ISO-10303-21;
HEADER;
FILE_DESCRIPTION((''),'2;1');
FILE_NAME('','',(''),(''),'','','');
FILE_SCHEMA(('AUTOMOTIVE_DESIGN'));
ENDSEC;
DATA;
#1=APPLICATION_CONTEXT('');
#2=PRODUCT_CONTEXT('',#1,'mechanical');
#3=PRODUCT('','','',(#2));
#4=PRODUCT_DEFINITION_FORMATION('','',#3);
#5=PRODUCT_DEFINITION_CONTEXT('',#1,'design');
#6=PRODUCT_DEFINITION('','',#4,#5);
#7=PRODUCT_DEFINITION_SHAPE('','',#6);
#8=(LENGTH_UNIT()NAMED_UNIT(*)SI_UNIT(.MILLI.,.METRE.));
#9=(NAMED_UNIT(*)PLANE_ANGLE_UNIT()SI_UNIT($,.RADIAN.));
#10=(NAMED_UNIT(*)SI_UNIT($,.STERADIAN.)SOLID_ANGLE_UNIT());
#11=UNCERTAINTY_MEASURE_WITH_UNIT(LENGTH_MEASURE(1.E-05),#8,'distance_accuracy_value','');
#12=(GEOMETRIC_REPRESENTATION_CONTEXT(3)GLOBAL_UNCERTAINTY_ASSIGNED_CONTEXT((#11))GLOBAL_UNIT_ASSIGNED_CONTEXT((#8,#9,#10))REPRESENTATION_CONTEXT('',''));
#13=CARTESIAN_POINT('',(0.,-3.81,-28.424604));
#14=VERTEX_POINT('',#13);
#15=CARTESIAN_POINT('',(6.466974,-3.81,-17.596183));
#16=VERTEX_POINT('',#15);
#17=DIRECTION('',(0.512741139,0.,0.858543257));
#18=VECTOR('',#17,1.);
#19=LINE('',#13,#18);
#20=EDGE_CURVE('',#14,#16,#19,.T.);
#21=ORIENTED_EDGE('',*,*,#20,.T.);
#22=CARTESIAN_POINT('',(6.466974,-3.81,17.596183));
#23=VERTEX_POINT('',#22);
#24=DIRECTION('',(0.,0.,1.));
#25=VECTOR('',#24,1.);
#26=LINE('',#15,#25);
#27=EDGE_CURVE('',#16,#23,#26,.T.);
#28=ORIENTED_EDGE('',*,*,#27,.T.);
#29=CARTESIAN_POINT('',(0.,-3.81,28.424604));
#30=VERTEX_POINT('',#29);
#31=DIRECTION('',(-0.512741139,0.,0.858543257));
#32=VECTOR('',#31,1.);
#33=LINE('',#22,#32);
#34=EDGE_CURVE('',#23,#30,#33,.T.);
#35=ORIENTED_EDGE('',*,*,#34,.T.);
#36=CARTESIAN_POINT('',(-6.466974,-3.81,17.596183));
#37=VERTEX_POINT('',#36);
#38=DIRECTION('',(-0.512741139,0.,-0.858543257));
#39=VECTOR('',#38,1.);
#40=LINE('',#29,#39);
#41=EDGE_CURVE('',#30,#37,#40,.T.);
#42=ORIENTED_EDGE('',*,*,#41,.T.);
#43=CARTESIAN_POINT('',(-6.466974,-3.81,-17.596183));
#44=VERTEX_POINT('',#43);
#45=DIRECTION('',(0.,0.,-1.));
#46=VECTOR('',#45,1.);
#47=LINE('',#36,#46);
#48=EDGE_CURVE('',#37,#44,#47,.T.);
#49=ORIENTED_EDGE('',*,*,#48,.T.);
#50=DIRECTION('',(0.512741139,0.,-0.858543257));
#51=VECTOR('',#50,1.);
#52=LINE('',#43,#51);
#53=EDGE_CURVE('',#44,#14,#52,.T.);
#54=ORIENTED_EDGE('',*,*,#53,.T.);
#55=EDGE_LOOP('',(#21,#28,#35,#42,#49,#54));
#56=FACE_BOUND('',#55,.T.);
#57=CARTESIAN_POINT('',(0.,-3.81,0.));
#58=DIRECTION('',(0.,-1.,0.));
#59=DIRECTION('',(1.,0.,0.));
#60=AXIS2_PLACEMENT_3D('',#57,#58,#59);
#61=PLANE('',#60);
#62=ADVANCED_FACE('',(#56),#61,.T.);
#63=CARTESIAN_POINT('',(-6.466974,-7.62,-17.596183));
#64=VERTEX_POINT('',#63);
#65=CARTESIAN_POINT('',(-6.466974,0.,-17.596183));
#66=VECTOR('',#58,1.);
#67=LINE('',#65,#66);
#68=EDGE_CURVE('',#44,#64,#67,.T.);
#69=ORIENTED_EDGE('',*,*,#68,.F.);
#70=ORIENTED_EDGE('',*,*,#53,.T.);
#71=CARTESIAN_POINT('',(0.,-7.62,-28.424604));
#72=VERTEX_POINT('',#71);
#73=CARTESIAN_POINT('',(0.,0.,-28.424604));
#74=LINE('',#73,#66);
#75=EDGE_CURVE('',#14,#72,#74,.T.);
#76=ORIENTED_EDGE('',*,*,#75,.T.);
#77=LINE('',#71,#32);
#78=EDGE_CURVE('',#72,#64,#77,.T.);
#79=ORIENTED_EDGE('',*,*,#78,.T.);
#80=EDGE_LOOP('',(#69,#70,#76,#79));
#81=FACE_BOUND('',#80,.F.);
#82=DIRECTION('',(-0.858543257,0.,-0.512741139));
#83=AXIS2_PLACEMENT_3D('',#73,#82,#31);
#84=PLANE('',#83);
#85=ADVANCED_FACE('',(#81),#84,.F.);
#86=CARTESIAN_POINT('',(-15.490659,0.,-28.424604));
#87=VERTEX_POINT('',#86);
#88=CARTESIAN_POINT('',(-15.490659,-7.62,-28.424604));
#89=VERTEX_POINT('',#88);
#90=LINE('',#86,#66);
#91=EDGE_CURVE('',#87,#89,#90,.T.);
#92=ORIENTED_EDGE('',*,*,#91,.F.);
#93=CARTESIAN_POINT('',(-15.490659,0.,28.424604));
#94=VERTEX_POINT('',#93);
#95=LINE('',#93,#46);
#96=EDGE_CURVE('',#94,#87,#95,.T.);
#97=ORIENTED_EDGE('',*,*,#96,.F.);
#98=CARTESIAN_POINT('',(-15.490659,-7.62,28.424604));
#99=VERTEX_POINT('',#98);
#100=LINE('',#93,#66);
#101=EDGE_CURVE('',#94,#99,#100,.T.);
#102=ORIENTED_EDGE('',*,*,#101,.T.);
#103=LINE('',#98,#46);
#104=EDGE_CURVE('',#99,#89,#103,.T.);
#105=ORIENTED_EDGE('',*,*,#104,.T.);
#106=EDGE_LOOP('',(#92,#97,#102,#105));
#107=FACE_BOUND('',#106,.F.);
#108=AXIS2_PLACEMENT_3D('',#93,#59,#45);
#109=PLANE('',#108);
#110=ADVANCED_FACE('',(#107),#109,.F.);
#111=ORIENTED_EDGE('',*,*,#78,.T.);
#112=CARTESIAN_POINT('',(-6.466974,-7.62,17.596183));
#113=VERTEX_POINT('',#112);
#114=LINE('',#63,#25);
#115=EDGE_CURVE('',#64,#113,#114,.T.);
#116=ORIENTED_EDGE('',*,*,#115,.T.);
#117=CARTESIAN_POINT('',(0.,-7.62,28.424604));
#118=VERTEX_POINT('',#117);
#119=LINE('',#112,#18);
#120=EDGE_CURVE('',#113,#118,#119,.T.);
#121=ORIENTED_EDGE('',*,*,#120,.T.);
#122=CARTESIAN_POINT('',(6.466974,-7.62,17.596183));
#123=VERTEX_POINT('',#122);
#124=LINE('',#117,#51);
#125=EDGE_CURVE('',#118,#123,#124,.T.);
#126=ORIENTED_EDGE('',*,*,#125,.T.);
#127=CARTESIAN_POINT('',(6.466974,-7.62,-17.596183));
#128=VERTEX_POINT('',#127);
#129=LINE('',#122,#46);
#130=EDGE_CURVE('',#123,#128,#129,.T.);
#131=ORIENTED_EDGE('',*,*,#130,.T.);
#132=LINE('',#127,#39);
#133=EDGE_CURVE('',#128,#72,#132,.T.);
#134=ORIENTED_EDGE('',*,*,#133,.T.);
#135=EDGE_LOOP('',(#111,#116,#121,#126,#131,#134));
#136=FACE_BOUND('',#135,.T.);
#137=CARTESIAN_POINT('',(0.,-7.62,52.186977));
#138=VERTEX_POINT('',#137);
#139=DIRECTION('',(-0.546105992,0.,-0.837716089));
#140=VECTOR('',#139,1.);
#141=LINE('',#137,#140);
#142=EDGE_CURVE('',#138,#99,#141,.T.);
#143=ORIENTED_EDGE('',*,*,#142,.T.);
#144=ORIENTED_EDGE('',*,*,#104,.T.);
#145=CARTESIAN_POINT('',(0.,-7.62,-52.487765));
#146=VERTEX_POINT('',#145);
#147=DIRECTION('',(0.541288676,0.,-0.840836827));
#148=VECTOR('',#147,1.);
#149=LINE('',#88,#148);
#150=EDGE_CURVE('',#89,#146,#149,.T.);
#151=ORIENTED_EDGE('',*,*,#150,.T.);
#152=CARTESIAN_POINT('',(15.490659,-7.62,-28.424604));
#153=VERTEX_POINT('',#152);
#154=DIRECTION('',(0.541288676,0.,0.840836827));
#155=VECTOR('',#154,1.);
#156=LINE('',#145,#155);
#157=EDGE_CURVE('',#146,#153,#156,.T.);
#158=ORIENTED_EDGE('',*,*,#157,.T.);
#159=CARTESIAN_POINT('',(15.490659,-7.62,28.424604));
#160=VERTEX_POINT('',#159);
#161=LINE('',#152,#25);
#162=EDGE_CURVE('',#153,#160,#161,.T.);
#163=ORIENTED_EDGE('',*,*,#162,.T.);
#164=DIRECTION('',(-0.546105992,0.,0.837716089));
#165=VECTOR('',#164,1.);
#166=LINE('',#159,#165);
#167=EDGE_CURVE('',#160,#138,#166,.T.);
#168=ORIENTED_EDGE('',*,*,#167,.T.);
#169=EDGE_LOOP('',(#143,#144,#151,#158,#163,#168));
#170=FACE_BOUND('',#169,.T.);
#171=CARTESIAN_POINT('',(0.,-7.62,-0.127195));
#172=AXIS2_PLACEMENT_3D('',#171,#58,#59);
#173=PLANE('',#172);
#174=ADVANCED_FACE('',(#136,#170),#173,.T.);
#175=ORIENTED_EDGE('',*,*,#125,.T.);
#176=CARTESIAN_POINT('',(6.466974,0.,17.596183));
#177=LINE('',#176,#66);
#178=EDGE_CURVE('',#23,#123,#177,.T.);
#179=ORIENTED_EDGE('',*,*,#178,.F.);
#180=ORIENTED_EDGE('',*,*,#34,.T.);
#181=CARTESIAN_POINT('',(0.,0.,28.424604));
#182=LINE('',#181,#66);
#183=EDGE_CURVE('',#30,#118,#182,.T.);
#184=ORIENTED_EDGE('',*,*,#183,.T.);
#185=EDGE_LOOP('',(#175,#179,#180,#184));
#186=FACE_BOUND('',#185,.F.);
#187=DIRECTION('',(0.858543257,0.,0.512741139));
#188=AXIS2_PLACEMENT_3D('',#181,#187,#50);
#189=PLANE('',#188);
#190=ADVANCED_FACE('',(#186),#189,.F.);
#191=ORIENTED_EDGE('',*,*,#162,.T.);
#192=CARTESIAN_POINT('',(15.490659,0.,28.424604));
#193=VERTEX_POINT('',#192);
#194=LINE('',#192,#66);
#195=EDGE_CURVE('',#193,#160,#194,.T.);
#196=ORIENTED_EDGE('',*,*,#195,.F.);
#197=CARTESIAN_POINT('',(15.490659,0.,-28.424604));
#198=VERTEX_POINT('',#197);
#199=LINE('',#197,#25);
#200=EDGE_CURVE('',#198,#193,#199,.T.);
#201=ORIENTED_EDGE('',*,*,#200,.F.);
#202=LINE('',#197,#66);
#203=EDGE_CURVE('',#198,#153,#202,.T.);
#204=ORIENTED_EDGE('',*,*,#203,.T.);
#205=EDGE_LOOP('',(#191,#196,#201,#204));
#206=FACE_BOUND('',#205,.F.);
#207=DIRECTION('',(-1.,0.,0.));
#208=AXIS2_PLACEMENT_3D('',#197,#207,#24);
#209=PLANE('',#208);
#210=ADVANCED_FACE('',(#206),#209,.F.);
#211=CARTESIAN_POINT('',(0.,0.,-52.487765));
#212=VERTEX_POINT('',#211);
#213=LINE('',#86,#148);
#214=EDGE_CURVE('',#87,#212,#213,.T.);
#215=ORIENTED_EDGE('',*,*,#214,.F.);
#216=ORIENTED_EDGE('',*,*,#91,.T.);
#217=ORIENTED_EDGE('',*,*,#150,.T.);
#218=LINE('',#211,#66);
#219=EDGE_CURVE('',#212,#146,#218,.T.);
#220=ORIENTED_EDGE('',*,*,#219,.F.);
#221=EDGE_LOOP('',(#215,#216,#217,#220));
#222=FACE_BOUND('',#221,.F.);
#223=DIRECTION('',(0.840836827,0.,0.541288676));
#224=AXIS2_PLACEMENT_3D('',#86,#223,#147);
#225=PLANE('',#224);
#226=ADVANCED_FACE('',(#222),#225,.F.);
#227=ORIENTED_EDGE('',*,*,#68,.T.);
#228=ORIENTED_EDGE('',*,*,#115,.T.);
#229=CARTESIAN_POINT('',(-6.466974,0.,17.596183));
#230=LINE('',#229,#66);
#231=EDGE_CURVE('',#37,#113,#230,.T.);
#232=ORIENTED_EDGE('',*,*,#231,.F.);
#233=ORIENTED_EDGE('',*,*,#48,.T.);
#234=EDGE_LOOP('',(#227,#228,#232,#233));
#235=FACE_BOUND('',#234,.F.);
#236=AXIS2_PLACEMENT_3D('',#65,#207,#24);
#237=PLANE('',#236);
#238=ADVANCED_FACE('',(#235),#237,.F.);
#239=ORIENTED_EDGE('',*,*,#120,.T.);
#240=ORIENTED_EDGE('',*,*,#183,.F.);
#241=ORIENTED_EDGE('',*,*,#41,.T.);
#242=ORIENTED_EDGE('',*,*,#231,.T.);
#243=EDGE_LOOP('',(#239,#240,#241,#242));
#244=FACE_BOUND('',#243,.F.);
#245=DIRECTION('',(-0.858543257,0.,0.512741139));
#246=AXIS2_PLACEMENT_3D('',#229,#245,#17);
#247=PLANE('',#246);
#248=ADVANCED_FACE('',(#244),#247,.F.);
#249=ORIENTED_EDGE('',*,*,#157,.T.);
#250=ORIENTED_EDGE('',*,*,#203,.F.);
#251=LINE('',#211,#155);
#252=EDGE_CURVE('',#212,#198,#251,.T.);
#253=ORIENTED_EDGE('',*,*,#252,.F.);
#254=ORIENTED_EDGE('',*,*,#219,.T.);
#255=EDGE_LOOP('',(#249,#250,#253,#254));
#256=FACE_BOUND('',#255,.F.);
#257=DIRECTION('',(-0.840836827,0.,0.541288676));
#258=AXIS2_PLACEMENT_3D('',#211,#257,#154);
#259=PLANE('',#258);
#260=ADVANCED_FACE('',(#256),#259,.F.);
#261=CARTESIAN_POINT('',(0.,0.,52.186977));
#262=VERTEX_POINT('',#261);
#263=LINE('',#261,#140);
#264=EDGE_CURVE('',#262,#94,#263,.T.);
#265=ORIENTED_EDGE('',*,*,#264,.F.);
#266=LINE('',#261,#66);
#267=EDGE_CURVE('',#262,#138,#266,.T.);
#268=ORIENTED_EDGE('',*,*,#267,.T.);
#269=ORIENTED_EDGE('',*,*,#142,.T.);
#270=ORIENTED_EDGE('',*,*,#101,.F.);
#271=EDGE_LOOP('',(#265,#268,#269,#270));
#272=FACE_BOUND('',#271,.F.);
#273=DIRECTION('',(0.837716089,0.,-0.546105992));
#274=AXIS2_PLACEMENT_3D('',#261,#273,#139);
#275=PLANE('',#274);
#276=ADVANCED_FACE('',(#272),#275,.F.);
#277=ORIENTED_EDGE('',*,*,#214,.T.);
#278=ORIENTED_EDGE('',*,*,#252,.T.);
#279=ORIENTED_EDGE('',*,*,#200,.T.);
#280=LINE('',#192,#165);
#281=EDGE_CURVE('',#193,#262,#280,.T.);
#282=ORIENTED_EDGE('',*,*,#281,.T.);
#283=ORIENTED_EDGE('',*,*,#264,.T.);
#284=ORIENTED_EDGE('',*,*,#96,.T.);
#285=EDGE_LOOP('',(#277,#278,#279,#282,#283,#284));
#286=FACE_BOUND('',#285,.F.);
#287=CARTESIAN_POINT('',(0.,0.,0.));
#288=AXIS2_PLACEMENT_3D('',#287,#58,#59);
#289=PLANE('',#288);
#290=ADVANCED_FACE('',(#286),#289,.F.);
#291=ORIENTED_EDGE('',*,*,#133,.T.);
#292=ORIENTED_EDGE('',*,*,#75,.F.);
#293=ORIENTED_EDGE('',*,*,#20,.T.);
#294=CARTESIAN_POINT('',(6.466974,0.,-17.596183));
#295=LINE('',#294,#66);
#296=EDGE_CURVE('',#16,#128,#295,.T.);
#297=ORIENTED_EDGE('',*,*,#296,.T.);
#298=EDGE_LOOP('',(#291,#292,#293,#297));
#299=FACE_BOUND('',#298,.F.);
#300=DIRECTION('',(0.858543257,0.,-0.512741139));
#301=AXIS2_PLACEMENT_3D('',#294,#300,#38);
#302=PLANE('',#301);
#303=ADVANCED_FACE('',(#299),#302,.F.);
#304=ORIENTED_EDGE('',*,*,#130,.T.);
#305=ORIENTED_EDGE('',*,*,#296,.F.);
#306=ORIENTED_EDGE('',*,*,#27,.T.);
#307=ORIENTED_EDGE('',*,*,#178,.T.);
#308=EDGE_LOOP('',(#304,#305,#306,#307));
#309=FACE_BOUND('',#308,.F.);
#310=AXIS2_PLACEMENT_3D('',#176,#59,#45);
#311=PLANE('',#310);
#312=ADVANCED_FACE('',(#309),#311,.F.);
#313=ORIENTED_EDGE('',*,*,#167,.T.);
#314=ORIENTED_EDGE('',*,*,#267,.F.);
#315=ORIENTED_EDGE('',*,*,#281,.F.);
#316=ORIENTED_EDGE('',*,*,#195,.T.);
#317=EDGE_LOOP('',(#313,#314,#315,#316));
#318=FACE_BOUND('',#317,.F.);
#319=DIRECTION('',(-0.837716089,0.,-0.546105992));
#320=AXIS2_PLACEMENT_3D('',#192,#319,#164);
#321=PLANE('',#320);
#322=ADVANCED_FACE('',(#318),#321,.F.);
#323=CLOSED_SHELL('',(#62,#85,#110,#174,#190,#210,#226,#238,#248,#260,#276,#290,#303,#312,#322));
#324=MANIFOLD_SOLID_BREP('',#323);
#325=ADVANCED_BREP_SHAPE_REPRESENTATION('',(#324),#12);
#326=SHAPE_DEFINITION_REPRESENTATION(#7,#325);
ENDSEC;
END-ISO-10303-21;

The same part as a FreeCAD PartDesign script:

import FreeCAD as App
import Part
import Sketcher

V = App.Vector
Q = App.Units.Quantity


def add_polygon(sketch, points):
    """Adds a closed chain of lines whose ends are joined by coincident constraints."""
    first, n = sketch.GeometryCount, len(points)
    for a, b in zip(points, points[1:] + points[:1]):
        sketch.addGeometry(Part.LineSegment(App.Vector(*a, 0), App.Vector(*b, 0)), False)
    for i in range(n):
        sketch.addConstraint(Sketcher.Constraint("Coincident", first + i, 2, first + (i + 1) % n, 1))

doc = App.newDocument("Part")
body = doc.addObject("PartDesign::Body", "Body")

# Sketch on XZ plane
sketch1 = body.newObject("Sketcher::SketchObject", "Sketch")
sketch1.AttachmentSupport = (doc.getObject("XZ_Plane"), [""])
sketch1.MapMode = "FlatFace"
add_polygon(sketch1, [(0, 52), (-15, 28), (-15, -28), (0, -52), (15, -28), (15, 28)])  # lines 0-5
add_polygon(sketch1, [(0, -28), (-6, -18), (-6, 18), (0, 28), (6, 18), (6, -18)])  # lines 6-11
sketch1.addConstraint(Sketcher.Constraint("Vertical", 1))
sketch1.addConstraint(Sketcher.Constraint("Vertical", 4))
sketch1.addConstraint(Sketcher.Constraint("Vertical", 7))
sketch1.addConstraint(Sketcher.Constraint("Vertical", 10))
sketch1.addConstraint(Sketcher.Constraint("Symmetric", 0, 2, 3, 2, -1, 1))
sketch1.addConstraint(Sketcher.Constraint("Symmetric", 6, 2, 9, 2, -1, 1))
sketch1.addConstraint(Sketcher.Constraint("Symmetric", 8, 2, 11, 2, -1, 1))
sketch1.addConstraint(Sketcher.Constraint("PointOnObject", 2, 2, -2))
sketch1.addConstraint(Sketcher.Constraint("PointOnObject", 5, 2, -2))
sketch1.addConstraint(Sketcher.Constraint("PointOnObject", 8, 2, -2))
sketch1.addConstraint(Sketcher.Constraint("Parallel", 8, 11))
sketch1.addConstraint(Sketcher.Constraint("Horizontal", 1, 2, 3, 2))
sketch1.addConstraint(Sketcher.Constraint("Horizontal", 0, 2, 4, 2))
sketch1.addConstraint(Sketcher.Constraint("Horizontal", 4, 2, 8, 2))
sketch1.addConstraint(Sketcher.Constraint("Horizontal", 7, 2, 9, 2))
sketch1.addConstraint(Sketcher.Constraint("Distance", 2, Q("28.61811 mm")))
sketch1.addConstraint(Sketcher.Constraint("Distance", 6, Q("12.612551 mm")))
sketch1.addConstraint(Sketcher.Constraint("DistanceY", 1, 2, 1, 1, Q("56.849208 mm")))
sketch1.addConstraint(Sketcher.Constraint("DistanceY", 7, 1, 7, 2, Q("35.192366 mm")))
sketch1.addConstraint(Sketcher.Constraint("DistanceX", 0, 2, -1, 1, Q("15.490659 mm")))
sketch1.addConstraint(Sketcher.Constraint("DistanceY", 1, 2, 5, 2, Q("80.611581 mm")))
pad1 = body.newObject("PartDesign::Pad", "Pad")
pad1.Profile = sketch1
pad1.Length = Q("0.3 in")

# Sketch on XZ plane
sketch2 = body.newObject("Sketcher::SketchObject", "Sketch001")
sketch2.AttachmentSupport = (doc.getObject("XZ_Plane"), [""])
sketch2.MapMode = "FlatFace"
add_polygon(sketch2, [(0, 28), (-6, 18), (-6, -18), (0, -28), (6, -18), (6, 18)])  # lines 0-5
sketch2.addConstraint(Sketcher.Constraint("Vertical", 1))
sketch2.addConstraint(Sketcher.Constraint("Vertical", 4))
sketch2.addConstraint(Sketcher.Constraint("Symmetric", 0, 2, 3, 2, -1, 1))
sketch2.addConstraint(Sketcher.Constraint("Symmetric", 2, 2, 5, 2, -1, 1))
sketch2.addConstraint(Sketcher.Constraint("PointOnObject", 2, 2, -2))
sketch2.addConstraint(Sketcher.Constraint("Parallel", 2, 5))
sketch2.addConstraint(Sketcher.Constraint("Horizontal", 1, 2, 3, 2))
sketch2.addConstraint(Sketcher.Constraint("Distance", 0, Q("12.612551 mm")))
sketch2.addConstraint(Sketcher.Constraint("DistanceY", 1, 2, 1, 1, Q("35.192366 mm")))
sketch2.addConstraint(Sketcher.Constraint("DistanceY", 2, 2, 1, 2, Q("10.828421 mm")))
pad2 = body.newObject("PartDesign::Pad", "Pad001")
pad2.Profile = sketch2
pad2.Length = Q("0.15 in")

doc.recompute()
